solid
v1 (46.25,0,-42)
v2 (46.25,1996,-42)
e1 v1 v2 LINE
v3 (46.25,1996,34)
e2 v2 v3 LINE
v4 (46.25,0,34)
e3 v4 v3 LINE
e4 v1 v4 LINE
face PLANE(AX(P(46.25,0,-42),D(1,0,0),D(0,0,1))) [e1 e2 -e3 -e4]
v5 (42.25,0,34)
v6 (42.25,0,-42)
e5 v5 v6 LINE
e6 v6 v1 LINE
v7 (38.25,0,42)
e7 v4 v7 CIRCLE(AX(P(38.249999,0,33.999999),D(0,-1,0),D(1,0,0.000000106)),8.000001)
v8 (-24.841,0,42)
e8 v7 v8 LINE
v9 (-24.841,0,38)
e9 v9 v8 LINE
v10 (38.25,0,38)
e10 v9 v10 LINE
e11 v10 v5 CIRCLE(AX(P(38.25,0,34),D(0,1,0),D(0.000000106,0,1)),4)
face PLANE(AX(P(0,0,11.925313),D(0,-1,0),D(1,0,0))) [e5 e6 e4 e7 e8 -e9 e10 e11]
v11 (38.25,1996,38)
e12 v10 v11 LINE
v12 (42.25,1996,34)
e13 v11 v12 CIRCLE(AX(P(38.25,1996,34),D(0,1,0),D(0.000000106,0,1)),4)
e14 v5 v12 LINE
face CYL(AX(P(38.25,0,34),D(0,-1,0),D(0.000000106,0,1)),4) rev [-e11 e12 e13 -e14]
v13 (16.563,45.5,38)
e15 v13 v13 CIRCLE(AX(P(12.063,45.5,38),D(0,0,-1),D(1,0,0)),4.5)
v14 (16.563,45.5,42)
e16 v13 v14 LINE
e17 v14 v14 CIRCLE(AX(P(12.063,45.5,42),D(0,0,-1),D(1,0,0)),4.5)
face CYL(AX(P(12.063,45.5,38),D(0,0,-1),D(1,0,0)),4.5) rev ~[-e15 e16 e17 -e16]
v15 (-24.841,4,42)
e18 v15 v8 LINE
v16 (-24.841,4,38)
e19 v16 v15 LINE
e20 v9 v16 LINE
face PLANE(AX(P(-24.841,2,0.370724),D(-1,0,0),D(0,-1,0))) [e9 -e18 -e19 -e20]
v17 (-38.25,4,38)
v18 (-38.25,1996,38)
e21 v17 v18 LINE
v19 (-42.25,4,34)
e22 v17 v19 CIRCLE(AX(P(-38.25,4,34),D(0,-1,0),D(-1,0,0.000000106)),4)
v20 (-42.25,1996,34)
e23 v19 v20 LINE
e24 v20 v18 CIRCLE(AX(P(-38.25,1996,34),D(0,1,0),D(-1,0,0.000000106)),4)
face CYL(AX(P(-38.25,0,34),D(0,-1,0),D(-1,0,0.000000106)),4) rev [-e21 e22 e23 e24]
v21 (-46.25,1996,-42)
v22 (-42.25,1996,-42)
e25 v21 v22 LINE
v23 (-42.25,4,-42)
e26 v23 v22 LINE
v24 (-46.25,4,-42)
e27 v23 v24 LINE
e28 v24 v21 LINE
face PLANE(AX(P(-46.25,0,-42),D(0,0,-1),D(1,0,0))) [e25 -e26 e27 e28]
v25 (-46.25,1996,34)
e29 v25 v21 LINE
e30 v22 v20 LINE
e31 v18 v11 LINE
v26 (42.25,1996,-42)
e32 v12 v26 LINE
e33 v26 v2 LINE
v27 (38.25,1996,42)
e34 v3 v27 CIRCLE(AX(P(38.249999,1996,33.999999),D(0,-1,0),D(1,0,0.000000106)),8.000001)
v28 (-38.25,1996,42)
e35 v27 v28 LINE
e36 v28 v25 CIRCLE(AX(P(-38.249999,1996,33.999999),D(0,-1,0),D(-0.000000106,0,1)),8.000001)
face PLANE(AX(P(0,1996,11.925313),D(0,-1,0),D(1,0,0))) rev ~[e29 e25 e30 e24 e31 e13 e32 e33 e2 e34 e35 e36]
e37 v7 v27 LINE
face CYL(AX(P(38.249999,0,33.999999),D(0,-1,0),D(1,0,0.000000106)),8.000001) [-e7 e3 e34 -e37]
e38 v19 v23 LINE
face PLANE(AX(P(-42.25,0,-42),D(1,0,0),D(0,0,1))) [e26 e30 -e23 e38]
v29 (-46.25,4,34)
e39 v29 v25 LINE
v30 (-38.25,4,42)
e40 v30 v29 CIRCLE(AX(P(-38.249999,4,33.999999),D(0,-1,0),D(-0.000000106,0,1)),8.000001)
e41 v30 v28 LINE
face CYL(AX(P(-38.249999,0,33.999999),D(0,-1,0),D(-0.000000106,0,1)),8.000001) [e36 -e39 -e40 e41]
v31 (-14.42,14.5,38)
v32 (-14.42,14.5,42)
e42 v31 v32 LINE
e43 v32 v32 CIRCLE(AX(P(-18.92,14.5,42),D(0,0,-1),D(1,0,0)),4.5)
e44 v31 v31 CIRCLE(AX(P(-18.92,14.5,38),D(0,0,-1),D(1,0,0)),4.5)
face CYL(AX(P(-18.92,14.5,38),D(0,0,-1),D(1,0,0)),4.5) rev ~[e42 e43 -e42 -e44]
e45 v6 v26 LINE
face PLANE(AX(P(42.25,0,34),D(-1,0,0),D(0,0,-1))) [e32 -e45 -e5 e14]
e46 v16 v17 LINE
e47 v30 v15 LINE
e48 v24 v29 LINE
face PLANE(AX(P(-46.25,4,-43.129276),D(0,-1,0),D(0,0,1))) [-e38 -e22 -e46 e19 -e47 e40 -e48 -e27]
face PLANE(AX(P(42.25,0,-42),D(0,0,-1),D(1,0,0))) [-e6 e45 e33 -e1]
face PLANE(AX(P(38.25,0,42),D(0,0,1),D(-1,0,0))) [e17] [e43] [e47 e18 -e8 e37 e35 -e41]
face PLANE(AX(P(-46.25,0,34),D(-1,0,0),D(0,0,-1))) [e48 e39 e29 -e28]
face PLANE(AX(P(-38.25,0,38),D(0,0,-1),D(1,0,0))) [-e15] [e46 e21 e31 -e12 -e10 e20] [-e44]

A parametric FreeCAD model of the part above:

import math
import FreeCAD as App
import Part
import Sketcher

doc = App.newDocument("Part")
body = doc.addObject("PartDesign::Body", "Body")

# Sketch on XZ plane
sketch1 = doc.addObject("Sketcher::SketchObject", "Sketch")
body.addObject(sketch1)
sketch1.AttachmentSupport = (doc.XZ_Plane, [""])
sketch1.MapMode = "FlatFace"
sketch1.addGeometry([
    Part.LineSegment(App.Vector(-46.2, 34, 0), App.Vector(-46.2, -42, 0)),  # 0
    Part.LineSegment(App.Vector(-46.2, -42, 0), App.Vector(-42.2, -42, 0)),  # 1
    Part.LineSegment(App.Vector(-42.2, -42, 0), App.Vector(-42.2, 34, 0)),  # 2
    Part.ArcOfCircle(Part.Circle(App.Vector(-38.2, 34, 0), App.Vector(0, 0, 1), 4), math.radians(90), math.radians(180)),  # 3
    Part.LineSegment(App.Vector(-38.2, 38, 0), App.Vector(38.2, 38, 0)),  # 4
    Part.ArcOfCircle(Part.Circle(App.Vector(38.2, 34, 0), App.Vector(0, 0, 1), 4), math.radians(0), math.radians(90)),  # 5
    Part.LineSegment(App.Vector(42.2, 34, 0), App.Vector(42.2, -42, 0)),  # 6
    Part.LineSegment(App.Vector(42.2, -42, 0), App.Vector(46.2, -42, 0)),  # 7
    Part.LineSegment(App.Vector(46.2, -42, 0), App.Vector(46.2, 34, 0)),  # 8
    Part.ArcOfCircle(Part.Circle(App.Vector(38.2, 34, 0), App.Vector(0, 0, 1), 8), math.radians(0), math.radians(90)),  # 9
    Part.LineSegment(App.Vector(38.2, 42, 0), App.Vector(-38.2, 42, 0)),  # 10
    Part.ArcOfCircle(Part.Circle(App.Vector(-38.2, 34, 0), App.Vector(0, 0, 1), 8), math.radians(90), math.radians(180)),  # 11
], False)
sketch1.addConstraint([
    Sketcher.Constraint("Coincident", 0, 2, 1, 1),
    Sketcher.Constraint("Coincident", 1, 2, 2, 1),
    Sketcher.Constraint("Tangent", 2, 2, 3, 2),
    Sketcher.Constraint("Tangent", 3, 1, 4, 1),
    Sketcher.Constraint("Tangent", 4, 2, 5, 2),
    Sketcher.Constraint("Tangent", 5, 1, 6, 1),
    Sketcher.Constraint("Coincident", 6, 2, 7, 1),
    Sketcher.Constraint("Coincident", 7, 2, 8, 1),
    Sketcher.Constraint("Tangent", 8, 2, 9, 1),
    Sketcher.Constraint("Tangent", 9, 2, 10, 1),
    Sketcher.Constraint("Tangent", 10, 2, 11, 1),
    Sketcher.Constraint("Tangent", 11, 2, 0, 1),
    Sketcher.Constraint("Vertical", 0),
    Sketcher.Constraint("Horizontal", 1),
    Sketcher.Constraint("Vertical", 2),
    Sketcher.Constraint("Horizontal", 4),
    Sketcher.Constraint("Vertical", 6),
    Sketcher.Constraint("Horizontal", 7),
    Sketcher.Constraint("Vertical", 8),
    Sketcher.Constraint("Horizontal", 10),
    Sketcher.Constraint("Coincident", 9, 3, 5, 3),
    Sketcher.Constraint("Coincident", 11, 3, 3, 3),
    Sketcher.Constraint("Equal", 3, 5),
    Sketcher.Constraint("Symmetric", 1, 2, 6, 2, -2),
    Sketcher.Constraint("Radius", 3, 4.0),
    Sketcher.Constraint("Radius", 9, 8.000001),
    Sketcher.Constraint("DistanceY", 0, 2, 0, 1, 76.0),
    Sketcher.Constraint("DistanceX", 4, 1, 4, 2, 76.5),
    Sketcher.Constraint("DistanceY", -1, 1, 3, 3, 34.0),
])
pad1 = doc.addObject("PartDesign::Pad", "Pad")
body.addObject(pad1)
pad1.Profile = sketch1
pad1.Length = 1996
pad1.Reversed = True

# Sketch on YZ plane
sketch2 = doc.addObject("Sketcher::SketchObject", "Sketch001")
body.addObject(sketch2)
sketch2.AttachmentSupport = (doc.YZ_Plane, [""])
sketch2.MapMode = "FlatFace"
sketch2.AttachmentOffset = App.Placement(App.Vector(0, 0, -46.25), App.Rotation())
sketch2.addGeometry([
    Part.LineSegment(App.Vector(4, 43.9, 0), App.Vector(4, -43.1, 0)),
    Part.LineSegment(App.Vector(4, -43.1, 0), App.Vector(0, -43.1, 0)),
    Part.LineSegment(App.Vector(0, -43.1, 0), App.Vector(0, 43.9, 0)),
    Part.LineSegment(App.Vector(0, 43.9, 0), App.Vector(4, 43.9, 0)),
], False)
sketch2.addConstraint([
    Sketcher.Constraint("Coincident", 0, 2, 1, 1),
    Sketcher.Constraint("Coincident", 1, 2, 2, 1),
    Sketcher.Constraint("Coincident", 2, 2, 3, 1),
    Sketcher.Constraint("Coincident", 3, 2, 0, 1),
    Sketcher.Constraint("Vertical", 0),
    Sketcher.Constraint("Horizontal", 1),
    Sketcher.Constraint("Vertical", 2),
    Sketcher.Constraint("Horizontal", 3),
    Sketcher.Constraint("PointOnObject", 1, 2, -2),
    Sketcher.Constraint("DistanceX", 1, 2, 1, 1, 4.0),
    Sketcher.Constraint("DistanceY", 0, 2, 0, 1, 87.0),
    Sketcher.Constraint("DistanceY", 0, 2, -1, 1, 43.129276),
])
pocket1 = doc.addObject("PartDesign::Pocket", "Pocket")
body.addObject(pocket1)
pocket1.Profile = sketch2
pocket1.Length = 21.409
pocket1.Reversed = True

# Sketch on XY plane
sketch3 = doc.addObject("Sketcher::SketchObject", "Sketch002")
body.addObject(sketch3)
sketch3.AttachmentSupport = (doc.XY_Plane, [""])
sketch3.MapMode = "FlatFace"
sketch3.AttachmentOffset = App.Placement(App.Vector(0, 0, 38), App.Rotation())
sketch3.addGeometry([
    Part.Circle(App.Vector(12.1, 45.5, 0), App.Vector(0, 0, 1), 4.5),
    Part.Circle(App.Vector(-18.9, 14.5, 0), App.Vector(0, 0, 1), 4.5),
], False)
sketch3.addConstraint([
    Sketcher.Constraint("Equal", 0, 1),
    Sketcher.Constraint("Diameter", 0, 9.0),
    Sketcher.Constraint("DistanceY", 1, 3, 0, 3, 31.0),
    Sketcher.Constraint("DistanceY", -1, 1, 0, 3, 45.5),
    Sketcher.Constraint("DistanceX", 1, 3, -1, 1, 18.92),
    Sketcher.Constraint("DistanceX", -1, 1, 0, 3, 12.063),
])
pocket2 = doc.addObject("PartDesign::Pocket", "Pocket001")
body.addObject(pocket2)
pocket2.Profile = sketch3
pocket2.Length = 4
pocket2.Reversed = True

doc.recompute()
